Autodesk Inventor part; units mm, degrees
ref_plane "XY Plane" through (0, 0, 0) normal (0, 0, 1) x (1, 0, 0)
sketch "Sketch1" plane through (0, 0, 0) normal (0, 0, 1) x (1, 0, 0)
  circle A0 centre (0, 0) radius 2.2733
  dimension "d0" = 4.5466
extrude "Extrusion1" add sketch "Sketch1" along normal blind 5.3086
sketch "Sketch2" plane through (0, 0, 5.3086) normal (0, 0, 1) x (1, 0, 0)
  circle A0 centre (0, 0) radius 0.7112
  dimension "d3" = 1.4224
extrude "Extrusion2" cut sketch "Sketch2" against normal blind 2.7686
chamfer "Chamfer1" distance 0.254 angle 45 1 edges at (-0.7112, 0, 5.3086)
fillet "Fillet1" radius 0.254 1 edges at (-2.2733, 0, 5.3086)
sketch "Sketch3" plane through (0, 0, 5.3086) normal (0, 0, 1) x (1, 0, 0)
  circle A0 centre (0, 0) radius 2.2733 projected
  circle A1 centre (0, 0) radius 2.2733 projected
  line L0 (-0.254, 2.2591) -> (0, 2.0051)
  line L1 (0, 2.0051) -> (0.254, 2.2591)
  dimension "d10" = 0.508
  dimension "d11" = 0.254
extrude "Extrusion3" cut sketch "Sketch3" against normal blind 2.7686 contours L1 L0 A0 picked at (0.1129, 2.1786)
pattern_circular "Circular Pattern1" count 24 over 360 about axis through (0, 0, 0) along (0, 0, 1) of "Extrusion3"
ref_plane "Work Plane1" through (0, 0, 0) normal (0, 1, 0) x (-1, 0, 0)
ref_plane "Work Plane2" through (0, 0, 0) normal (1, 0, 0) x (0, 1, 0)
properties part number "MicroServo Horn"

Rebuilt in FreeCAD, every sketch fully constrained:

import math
import FreeCAD as App
import Part
import Sketcher
Q = App.Units.Quantity


def edges_at(feature, points):
    """Names of the edges that pass closest to the given points."""
    edges = feature.Shape.Edges
    near = lambda p: min(range(len(edges)), key=lambda i: edges[i].distToShape(Part.Vertex(*p))[0])
    return sorted({f"Edge{near(p) + 1}" for p in points})

doc = App.newDocument("Part")
body = doc.addObject("PartDesign::Body", "Body")

# Sketch on XY plane
sketch1 = body.newObject("Sketcher::SketchObject", "Sketch")
sketch1.AttachmentSupport = (doc.getObject("XY_Plane"), [""])
sketch1.MapMode = "FlatFace"
sketch1.addGeometry(Part.Circle(App.Vector(0, 0, 0), App.Vector(0, 0, 1), 2.3), False)
sketch1.addConstraint([
    Sketcher.Constraint("Coincident", 0, 3, -1, 1),
    Sketcher.Constraint("Diameter", 0, Q("0.179 in")),
])
pad1 = body.newObject("PartDesign::Pad", "Pad")
pad1.Profile = sketch1
pad1.Length = Q("0.209 in")

# Sketch on XY plane
sketch2 = body.newObject("Sketcher::SketchObject", "Sketch001")
sketch2.AttachmentSupport = (doc.getObject("XY_Plane"), [""])
sketch2.MapMode = "FlatFace"
sketch2.AttachmentOffset = App.Placement(App.Vector(0, 0, 0.209 * 25.4), App.Rotation())
sketch2.addGeometry(Part.Circle(App.Vector(0, 0, 0), App.Vector(0, 0, 1), 0.7), False)
sketch2.addConstraint([
    Sketcher.Constraint("Coincident", 0, 3, -1, 1),
    Sketcher.Constraint("Diameter", 0, Q("0.056 in")),
])
pocket1 = body.newObject("PartDesign::Pocket", "Pocket")
pocket1.Profile = sketch2
pocket1.Length = Q("0.109 in")
doc.recompute()

chamfer = body.newObject("PartDesign::Chamfer", "Chamfer")
chamfer.Base = (pocket1, edges_at(pocket1, [(-0.711, 0, 5.309)]))
chamfer.Size = Q("0.01 in")
doc.recompute()

fillet = body.newObject("PartDesign::Fillet", "Fillet")
fillet.Base = (chamfer, edges_at(chamfer, [(-2.273, 0, 5.309)]))
fillet.Radius = Q("0.01 in")

# Sketch on XY plane
sketch3 = body.newObject("Sketcher::SketchObject", "Sketch002")
sketch3.AttachmentSupport = (doc.getObject("XY_Plane"), [""])
sketch3.MapMode = "FlatFace"
sketch3.AttachmentOffset = App.Placement(App.Vector(0, 0, 0.209 * 25.4), App.Rotation())
sketch3.addGeometry([
    Part.LineSegment(App.Vector(0, 2.01, 0), App.Vector(0.25, 2.26, 0)),
    Part.ArcOfCircle(Part.Circle(App.Vector(0, 0, 0), App.Vector(0, 0, 1), 2.27), math.radians(83.58), math.radians(96.42)),
    Part.LineSegment(App.Vector(-0.25, 2.26, 0), App.Vector(0, 2.01, 0)),
], False)
sketch3.addConstraint([
    Sketcher.Constraint("Coincident", 0, 2, 1, 1),
    Sketcher.Constraint("Coincident", 1, 2, 2, 1),
    Sketcher.Constraint("Coincident", 2, 2, 0, 1),
    Sketcher.Constraint("Coincident", 1, 3, -1, 1),
    Sketcher.Constraint("PointOnObject", 2, 2, -2),
    Sketcher.Constraint("Perpendicular", 0, 2),
    Sketcher.Constraint("Horizontal", 0, 2, 1, 2),
    Sketcher.Constraint("DistanceX", -1, 1, 0, 2, Q("0.01 in")),
    Sketcher.Constraint("Radius", 1, Q("0.0895 in")),
])
pocket2 = body.newObject("PartDesign::Pocket", "Pocket001")
pocket2.Profile = sketch3
pocket2.Length = Q("0.109 in")
doc.recompute()

polarpattern = body.newObject("PartDesign::PolarPattern", "PolarPattern")
polarpattern.Originals = [pocket2]
polarpattern.Axis = (doc.getObject("Z_Axis"), [""])
polarpattern.Angle = 360
polarpattern.Occurrences = 24
body.Tip = polarpattern

doc.recompute()
